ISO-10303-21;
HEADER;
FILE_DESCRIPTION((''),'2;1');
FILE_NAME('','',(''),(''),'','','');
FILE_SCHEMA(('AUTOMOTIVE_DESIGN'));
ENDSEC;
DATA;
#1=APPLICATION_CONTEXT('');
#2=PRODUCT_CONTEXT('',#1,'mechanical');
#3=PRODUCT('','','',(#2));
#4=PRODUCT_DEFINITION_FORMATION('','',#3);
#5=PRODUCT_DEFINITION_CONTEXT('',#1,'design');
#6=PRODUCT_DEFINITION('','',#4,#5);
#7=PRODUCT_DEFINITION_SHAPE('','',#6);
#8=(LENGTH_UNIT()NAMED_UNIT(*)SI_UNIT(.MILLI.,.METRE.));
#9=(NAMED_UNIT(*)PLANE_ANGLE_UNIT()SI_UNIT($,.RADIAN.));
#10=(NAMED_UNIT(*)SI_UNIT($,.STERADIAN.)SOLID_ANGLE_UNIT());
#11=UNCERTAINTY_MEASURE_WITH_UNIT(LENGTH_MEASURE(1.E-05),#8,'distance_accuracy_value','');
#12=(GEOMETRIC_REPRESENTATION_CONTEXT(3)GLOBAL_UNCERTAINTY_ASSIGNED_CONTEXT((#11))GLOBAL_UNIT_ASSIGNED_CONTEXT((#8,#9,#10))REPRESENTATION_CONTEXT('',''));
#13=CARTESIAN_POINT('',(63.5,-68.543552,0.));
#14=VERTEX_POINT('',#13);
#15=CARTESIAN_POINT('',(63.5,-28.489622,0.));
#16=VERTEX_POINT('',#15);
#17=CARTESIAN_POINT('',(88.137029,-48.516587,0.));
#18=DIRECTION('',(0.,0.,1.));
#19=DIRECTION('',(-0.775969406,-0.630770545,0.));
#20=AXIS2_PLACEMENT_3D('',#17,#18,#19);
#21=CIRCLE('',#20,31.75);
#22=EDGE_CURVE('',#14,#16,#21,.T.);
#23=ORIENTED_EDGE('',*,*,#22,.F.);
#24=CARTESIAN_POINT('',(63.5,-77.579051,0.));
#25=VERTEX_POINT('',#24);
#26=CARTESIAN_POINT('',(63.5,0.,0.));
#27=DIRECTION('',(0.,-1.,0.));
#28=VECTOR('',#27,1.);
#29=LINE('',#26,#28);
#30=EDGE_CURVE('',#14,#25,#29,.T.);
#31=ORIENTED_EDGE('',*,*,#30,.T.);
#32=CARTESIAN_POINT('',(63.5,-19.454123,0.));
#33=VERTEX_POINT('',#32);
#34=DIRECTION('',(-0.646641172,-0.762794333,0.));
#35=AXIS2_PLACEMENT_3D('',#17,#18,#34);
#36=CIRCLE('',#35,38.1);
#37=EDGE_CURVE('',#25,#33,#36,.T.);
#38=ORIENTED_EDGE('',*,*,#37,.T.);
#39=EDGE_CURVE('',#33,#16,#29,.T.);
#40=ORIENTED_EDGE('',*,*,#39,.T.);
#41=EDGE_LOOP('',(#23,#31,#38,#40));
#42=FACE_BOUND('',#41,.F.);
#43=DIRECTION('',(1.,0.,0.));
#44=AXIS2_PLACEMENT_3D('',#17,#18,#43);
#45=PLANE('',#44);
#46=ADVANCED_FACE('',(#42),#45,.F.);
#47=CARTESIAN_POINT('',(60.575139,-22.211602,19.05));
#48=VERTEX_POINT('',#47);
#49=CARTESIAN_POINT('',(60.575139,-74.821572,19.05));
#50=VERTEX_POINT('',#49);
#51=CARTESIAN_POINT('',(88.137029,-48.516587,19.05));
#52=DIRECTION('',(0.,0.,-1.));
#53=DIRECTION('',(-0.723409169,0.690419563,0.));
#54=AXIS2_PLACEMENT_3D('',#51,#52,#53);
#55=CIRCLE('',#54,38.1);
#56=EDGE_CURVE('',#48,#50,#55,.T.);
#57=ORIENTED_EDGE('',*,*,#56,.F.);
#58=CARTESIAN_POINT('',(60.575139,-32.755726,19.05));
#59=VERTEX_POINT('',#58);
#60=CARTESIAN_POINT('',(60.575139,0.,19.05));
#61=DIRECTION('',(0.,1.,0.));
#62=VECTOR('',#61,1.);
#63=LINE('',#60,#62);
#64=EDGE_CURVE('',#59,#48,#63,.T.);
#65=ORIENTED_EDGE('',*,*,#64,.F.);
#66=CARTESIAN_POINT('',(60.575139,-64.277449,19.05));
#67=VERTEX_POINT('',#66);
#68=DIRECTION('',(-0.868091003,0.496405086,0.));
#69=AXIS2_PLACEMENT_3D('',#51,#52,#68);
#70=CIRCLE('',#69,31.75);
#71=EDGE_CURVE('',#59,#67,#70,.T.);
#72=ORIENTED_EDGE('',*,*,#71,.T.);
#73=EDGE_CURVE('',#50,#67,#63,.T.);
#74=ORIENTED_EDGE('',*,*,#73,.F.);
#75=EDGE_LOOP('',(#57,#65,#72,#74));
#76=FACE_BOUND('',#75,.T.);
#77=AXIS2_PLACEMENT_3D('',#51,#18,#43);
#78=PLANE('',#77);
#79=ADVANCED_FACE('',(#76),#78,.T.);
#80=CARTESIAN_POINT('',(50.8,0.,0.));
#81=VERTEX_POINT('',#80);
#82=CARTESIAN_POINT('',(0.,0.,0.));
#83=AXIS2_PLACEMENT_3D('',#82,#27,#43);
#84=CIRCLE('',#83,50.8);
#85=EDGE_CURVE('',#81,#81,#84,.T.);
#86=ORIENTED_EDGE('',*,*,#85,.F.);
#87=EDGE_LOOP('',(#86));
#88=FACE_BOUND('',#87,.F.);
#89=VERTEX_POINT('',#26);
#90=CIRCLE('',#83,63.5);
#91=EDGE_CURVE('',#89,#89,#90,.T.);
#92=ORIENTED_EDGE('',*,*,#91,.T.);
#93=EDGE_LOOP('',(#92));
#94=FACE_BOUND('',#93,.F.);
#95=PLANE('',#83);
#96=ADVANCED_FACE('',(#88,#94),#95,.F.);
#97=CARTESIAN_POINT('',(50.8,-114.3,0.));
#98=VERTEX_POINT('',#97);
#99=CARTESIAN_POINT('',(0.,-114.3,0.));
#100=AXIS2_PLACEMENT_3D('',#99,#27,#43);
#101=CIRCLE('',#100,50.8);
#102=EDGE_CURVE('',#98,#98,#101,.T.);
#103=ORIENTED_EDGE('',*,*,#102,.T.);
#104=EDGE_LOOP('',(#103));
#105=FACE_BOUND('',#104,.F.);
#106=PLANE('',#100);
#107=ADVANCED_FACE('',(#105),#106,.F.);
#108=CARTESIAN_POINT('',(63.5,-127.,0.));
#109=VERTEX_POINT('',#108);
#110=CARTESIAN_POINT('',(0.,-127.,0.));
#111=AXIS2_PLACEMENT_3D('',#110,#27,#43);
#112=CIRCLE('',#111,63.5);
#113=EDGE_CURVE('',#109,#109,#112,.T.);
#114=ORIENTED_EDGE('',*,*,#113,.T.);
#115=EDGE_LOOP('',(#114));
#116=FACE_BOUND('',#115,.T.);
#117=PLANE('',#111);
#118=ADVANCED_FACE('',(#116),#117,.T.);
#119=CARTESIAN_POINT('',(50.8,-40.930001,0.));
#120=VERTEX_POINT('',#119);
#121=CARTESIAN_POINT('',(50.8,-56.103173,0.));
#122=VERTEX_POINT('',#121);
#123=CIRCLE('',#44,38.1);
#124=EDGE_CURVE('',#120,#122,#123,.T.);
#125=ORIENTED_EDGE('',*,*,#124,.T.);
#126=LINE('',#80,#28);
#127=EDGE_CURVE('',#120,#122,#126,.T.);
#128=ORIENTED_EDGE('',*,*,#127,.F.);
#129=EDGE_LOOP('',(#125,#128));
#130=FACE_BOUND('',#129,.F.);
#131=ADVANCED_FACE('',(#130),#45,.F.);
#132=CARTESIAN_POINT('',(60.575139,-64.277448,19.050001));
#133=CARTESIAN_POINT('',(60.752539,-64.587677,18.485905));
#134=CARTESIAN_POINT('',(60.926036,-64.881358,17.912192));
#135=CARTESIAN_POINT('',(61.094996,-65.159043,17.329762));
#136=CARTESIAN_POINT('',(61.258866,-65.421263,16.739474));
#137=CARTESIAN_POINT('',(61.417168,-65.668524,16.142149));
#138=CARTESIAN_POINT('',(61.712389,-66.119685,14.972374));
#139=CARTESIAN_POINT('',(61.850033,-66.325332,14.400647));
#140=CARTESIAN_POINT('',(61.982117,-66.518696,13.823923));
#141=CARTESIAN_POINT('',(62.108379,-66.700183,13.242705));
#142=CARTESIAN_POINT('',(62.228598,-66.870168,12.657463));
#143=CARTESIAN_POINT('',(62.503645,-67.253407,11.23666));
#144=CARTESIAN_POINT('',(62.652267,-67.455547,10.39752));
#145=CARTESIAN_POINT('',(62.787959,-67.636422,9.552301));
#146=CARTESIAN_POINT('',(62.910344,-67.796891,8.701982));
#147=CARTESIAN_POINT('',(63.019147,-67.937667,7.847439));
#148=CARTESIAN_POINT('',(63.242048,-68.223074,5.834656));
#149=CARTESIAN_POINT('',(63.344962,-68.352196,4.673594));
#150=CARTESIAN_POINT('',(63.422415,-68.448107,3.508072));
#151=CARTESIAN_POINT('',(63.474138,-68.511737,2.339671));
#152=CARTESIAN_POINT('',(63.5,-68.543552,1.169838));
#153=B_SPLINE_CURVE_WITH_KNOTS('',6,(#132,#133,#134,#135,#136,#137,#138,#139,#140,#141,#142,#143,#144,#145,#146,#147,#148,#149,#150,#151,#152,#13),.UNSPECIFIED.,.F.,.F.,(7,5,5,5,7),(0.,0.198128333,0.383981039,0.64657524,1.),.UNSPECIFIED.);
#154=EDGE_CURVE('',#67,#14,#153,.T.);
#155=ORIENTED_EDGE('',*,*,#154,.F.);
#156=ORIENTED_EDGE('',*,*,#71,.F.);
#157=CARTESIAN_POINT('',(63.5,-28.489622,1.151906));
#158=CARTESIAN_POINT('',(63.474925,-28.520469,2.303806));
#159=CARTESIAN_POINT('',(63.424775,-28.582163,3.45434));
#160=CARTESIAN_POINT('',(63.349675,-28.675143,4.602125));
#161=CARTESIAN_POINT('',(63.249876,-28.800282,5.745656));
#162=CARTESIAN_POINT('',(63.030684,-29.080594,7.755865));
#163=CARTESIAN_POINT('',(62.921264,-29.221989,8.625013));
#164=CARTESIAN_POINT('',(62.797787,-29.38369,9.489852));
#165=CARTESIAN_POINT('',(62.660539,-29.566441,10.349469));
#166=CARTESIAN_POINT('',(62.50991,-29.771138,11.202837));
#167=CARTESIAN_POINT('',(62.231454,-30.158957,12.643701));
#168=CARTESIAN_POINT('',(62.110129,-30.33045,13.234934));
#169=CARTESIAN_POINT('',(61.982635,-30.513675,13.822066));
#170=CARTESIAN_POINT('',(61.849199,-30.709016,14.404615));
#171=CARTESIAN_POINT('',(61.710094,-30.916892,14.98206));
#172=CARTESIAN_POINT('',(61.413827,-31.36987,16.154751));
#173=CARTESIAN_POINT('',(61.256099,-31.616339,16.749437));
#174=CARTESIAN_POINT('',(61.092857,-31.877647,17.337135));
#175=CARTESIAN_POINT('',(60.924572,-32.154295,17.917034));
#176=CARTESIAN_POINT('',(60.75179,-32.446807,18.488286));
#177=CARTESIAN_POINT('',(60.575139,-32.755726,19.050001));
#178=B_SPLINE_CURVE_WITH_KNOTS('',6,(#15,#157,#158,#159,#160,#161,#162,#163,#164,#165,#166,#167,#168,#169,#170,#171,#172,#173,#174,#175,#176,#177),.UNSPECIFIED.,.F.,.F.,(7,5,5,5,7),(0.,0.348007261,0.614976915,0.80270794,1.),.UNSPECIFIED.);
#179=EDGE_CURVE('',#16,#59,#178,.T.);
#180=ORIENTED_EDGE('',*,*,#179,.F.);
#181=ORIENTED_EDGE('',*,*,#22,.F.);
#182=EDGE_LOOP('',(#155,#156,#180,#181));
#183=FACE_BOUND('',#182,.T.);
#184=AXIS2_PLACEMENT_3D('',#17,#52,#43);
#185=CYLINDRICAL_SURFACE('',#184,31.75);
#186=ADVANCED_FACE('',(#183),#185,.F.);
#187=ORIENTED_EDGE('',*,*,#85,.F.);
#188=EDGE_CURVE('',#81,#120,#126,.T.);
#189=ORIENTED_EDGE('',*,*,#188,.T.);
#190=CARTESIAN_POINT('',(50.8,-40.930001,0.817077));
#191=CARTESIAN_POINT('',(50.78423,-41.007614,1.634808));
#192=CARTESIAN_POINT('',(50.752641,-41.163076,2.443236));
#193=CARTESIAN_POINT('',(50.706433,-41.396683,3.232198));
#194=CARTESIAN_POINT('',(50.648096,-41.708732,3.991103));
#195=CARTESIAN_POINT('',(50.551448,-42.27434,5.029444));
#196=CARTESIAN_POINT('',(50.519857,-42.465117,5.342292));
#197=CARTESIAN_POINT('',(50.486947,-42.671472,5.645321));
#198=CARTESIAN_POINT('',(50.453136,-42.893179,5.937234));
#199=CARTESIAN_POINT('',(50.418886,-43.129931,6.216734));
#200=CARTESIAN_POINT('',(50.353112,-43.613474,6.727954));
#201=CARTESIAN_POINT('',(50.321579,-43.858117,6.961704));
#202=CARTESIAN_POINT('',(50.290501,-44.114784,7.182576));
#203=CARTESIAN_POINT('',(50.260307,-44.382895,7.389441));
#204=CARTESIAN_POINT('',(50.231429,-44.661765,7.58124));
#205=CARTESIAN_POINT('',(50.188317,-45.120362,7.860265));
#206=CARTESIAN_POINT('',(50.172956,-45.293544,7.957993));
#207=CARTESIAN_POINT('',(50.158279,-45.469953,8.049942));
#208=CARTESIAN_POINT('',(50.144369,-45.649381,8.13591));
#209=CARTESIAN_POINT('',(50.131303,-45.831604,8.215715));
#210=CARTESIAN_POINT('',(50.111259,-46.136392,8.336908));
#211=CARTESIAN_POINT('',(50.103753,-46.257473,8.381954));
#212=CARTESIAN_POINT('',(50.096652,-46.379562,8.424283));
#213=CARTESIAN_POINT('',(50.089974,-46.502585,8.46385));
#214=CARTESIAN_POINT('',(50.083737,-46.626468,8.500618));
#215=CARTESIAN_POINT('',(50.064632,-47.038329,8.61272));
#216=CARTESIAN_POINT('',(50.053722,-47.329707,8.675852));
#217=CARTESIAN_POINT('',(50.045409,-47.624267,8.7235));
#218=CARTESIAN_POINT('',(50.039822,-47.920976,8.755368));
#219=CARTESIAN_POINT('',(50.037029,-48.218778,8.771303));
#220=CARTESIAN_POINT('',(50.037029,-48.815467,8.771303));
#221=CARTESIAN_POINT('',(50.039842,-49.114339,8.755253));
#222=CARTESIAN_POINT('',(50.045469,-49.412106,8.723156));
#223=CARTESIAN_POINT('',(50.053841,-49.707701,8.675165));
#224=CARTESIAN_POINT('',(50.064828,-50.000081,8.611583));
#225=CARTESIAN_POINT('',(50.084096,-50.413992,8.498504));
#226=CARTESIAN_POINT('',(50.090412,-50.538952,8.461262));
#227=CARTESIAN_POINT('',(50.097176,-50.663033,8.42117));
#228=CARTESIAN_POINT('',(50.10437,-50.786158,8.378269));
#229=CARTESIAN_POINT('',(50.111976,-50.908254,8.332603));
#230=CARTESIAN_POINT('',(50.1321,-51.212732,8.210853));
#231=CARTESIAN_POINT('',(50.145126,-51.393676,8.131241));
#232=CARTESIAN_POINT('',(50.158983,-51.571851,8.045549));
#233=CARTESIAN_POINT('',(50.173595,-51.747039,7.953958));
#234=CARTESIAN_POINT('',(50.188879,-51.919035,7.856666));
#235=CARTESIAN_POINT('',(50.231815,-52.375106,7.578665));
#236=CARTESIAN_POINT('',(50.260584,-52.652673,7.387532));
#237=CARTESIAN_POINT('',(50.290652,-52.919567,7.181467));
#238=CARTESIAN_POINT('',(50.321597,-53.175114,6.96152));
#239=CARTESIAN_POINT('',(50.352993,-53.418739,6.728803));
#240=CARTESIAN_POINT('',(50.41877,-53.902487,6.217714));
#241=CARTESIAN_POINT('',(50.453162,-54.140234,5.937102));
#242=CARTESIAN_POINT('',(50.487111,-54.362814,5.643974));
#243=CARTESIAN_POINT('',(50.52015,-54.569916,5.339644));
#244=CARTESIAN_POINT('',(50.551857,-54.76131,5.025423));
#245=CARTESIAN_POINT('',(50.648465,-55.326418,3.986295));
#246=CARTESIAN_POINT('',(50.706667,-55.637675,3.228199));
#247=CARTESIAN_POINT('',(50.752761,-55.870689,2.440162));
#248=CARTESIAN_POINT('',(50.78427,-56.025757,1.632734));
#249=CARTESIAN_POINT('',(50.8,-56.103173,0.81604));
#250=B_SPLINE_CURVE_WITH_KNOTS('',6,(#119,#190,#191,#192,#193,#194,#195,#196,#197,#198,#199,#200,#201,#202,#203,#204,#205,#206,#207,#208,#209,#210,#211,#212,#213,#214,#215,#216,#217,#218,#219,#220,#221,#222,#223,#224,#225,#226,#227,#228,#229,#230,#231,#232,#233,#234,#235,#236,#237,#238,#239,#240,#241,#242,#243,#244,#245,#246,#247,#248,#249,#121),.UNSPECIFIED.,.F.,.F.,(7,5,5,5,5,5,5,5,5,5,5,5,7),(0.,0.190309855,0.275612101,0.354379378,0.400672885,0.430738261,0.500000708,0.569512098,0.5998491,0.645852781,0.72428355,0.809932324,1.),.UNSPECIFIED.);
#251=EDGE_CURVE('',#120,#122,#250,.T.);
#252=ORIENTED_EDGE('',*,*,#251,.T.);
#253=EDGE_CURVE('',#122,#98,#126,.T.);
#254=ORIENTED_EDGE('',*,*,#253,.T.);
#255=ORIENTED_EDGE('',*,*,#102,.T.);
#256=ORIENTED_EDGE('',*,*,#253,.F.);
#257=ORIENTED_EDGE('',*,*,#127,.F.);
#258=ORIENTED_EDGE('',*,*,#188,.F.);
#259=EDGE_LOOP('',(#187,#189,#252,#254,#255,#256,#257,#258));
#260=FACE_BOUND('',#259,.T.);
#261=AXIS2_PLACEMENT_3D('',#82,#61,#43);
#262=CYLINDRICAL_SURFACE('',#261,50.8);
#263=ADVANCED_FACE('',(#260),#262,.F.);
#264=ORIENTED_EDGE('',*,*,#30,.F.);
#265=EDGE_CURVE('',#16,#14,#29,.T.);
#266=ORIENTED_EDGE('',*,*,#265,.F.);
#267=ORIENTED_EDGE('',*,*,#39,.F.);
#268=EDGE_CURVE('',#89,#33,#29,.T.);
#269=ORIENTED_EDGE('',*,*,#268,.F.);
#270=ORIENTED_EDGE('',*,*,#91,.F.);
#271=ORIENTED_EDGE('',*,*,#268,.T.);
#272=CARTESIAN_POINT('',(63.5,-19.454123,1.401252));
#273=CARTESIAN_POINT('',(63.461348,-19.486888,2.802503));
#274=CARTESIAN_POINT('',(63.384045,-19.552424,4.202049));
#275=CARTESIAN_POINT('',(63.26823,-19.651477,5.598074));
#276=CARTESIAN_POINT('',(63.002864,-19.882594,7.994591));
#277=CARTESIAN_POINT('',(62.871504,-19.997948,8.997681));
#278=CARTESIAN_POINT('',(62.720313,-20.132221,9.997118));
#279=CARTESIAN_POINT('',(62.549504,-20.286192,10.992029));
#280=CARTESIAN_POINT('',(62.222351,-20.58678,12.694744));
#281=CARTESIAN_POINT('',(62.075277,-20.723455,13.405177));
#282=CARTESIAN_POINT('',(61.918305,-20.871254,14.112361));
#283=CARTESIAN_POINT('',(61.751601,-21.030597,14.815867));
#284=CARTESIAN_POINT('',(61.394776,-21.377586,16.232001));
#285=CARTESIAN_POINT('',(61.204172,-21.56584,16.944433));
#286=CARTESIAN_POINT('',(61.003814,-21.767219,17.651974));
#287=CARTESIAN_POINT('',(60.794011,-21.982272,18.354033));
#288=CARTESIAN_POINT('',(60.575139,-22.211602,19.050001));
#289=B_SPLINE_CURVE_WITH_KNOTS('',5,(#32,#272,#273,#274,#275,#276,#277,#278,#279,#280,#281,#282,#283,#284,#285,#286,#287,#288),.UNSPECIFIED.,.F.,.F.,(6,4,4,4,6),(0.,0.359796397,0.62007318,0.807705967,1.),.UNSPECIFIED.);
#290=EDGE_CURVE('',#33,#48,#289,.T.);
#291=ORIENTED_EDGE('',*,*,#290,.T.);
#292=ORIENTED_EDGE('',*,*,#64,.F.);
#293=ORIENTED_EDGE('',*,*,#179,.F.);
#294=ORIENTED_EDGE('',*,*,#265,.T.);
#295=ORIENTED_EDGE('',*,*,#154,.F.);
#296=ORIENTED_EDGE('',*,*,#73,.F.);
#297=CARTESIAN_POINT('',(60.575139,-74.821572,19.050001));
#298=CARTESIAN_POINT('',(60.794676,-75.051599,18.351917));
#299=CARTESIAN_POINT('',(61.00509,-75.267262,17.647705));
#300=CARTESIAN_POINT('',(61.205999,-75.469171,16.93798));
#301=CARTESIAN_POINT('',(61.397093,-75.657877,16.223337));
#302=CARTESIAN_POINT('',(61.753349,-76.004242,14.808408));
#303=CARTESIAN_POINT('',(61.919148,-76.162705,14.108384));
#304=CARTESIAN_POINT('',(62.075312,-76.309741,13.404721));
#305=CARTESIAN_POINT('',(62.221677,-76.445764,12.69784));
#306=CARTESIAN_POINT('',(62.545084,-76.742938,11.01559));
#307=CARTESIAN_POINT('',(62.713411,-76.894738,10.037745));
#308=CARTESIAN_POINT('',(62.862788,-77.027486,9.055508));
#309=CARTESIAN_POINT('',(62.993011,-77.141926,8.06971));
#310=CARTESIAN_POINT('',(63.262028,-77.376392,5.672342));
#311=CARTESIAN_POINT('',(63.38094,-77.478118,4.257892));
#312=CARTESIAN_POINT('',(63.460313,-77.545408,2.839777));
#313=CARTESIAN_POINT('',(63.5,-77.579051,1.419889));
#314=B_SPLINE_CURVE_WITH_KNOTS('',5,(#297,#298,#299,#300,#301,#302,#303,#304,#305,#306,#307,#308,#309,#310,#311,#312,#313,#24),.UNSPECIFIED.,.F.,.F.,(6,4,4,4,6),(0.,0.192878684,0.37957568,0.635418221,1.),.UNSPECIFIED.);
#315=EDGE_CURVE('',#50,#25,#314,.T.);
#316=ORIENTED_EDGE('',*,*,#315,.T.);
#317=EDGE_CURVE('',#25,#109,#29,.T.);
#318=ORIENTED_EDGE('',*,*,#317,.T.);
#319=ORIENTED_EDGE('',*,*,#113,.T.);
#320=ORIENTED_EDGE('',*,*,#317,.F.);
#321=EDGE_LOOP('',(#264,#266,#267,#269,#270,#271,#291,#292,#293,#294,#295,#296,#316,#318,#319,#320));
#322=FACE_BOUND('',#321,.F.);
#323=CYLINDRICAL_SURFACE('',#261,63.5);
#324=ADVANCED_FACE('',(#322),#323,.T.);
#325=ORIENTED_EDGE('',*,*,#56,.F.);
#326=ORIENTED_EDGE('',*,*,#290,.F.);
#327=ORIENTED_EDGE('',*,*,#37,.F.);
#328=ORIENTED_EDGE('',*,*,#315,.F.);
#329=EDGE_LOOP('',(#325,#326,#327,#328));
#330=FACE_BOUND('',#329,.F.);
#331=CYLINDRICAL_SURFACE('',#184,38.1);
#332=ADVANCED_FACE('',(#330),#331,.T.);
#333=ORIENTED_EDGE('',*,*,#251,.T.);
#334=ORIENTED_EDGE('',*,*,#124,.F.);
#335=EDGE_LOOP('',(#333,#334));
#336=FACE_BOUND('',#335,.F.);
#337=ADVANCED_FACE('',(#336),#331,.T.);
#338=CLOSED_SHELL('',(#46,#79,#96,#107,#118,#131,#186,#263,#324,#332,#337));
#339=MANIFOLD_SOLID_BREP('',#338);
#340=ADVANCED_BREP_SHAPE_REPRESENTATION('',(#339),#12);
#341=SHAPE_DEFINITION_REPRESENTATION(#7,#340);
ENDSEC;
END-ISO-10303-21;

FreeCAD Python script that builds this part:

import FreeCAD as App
import Part
import Sketcher
from FreeCAD import Vector
Q = App.Units.Quantity

doc = App.newDocument("Part")
body = doc.addObject("PartDesign::Body", "Body")

# Sketch on XZ plane
sketch1 = doc.addObject("Sketcher::SketchObject", "Sketch")
body.addObject(sketch1)
sketch1.AttachmentSupport = (doc.XZ_Plane, [""])
sketch1.MapMode = "FlatFace"
sketch1.addGeometry(Part.Circle(Vector(0, 0, 0), Vector(0, 0, 1), 64), False)
sketch1.addConstraint([
    Sketcher.Constraint("Coincident", 0, 3, -1, 1),
    Sketcher.Constraint("Diameter", 0, Q("5 in")),
])
pad1 = doc.addObject("PartDesign::Pad", "Pad")
body.addObject(pad1)
pad1.Profile = sketch1
pad1.Length = Q("5 in")

# Sketch on XZ plane
sketch2 = doc.addObject("Sketcher::SketchObject", "Sketch001")
body.addObject(sketch2)
sketch2.AttachmentSupport = (doc.XZ_Plane, [""])
sketch2.MapMode = "FlatFace"
sketch2.addGeometry(Part.Circle(Vector(0, 0, 0), Vector(0, 0, 1), 51), False)
sketch2.addConstraint([
    Sketcher.Constraint("Coincident", 0, 3, -1, 1),
    Sketcher.Constraint("Diameter", 0, Q("4 in")),
])
pocket1 = doc.addObject("PartDesign::Pocket", "Pocket")
body.addObject(pocket1)
pocket1.Profile = sketch2
pocket1.Length = Q("4.5 in")
pocket1.Reversed = True

# Sketch on XY plane
sketch3 = doc.addObject("Sketcher::SketchObject", "Sketch002")
body.addObject(sketch3)
sketch3.AttachmentSupport = (doc.XY_Plane, [""])
sketch3.MapMode = "FlatFace"
sketch3.addGeometry([
    Part.Circle(Vector(88, -49, 0), Vector(0, 0, 1), 38),
    Part.Circle(Vector(88, -49, 0), Vector(0, 0, 1), 32),
], False)
sketch3.addConstraint([
    Sketcher.Constraint("Coincident", 1, 3, 0, 3),
    Sketcher.Constraint("Diameter", 0, Q("3 in")),
    Sketcher.Constraint("Diameter", 1, Q("2.5 in")),
    Sketcher.Constraint("DistanceX", -1, 1, 0, 3, Q("88.137029 mm")),
    Sketcher.Constraint("DistanceY", 0, 3, -1, 1, Q("48.516587 mm")),
])
pad2 = doc.addObject("PartDesign::Pad", "Pad001")
body.addObject(pad2)
pad2.Profile = sketch3
pad2.Length = Q("0.75 in")

doc.recompute()
